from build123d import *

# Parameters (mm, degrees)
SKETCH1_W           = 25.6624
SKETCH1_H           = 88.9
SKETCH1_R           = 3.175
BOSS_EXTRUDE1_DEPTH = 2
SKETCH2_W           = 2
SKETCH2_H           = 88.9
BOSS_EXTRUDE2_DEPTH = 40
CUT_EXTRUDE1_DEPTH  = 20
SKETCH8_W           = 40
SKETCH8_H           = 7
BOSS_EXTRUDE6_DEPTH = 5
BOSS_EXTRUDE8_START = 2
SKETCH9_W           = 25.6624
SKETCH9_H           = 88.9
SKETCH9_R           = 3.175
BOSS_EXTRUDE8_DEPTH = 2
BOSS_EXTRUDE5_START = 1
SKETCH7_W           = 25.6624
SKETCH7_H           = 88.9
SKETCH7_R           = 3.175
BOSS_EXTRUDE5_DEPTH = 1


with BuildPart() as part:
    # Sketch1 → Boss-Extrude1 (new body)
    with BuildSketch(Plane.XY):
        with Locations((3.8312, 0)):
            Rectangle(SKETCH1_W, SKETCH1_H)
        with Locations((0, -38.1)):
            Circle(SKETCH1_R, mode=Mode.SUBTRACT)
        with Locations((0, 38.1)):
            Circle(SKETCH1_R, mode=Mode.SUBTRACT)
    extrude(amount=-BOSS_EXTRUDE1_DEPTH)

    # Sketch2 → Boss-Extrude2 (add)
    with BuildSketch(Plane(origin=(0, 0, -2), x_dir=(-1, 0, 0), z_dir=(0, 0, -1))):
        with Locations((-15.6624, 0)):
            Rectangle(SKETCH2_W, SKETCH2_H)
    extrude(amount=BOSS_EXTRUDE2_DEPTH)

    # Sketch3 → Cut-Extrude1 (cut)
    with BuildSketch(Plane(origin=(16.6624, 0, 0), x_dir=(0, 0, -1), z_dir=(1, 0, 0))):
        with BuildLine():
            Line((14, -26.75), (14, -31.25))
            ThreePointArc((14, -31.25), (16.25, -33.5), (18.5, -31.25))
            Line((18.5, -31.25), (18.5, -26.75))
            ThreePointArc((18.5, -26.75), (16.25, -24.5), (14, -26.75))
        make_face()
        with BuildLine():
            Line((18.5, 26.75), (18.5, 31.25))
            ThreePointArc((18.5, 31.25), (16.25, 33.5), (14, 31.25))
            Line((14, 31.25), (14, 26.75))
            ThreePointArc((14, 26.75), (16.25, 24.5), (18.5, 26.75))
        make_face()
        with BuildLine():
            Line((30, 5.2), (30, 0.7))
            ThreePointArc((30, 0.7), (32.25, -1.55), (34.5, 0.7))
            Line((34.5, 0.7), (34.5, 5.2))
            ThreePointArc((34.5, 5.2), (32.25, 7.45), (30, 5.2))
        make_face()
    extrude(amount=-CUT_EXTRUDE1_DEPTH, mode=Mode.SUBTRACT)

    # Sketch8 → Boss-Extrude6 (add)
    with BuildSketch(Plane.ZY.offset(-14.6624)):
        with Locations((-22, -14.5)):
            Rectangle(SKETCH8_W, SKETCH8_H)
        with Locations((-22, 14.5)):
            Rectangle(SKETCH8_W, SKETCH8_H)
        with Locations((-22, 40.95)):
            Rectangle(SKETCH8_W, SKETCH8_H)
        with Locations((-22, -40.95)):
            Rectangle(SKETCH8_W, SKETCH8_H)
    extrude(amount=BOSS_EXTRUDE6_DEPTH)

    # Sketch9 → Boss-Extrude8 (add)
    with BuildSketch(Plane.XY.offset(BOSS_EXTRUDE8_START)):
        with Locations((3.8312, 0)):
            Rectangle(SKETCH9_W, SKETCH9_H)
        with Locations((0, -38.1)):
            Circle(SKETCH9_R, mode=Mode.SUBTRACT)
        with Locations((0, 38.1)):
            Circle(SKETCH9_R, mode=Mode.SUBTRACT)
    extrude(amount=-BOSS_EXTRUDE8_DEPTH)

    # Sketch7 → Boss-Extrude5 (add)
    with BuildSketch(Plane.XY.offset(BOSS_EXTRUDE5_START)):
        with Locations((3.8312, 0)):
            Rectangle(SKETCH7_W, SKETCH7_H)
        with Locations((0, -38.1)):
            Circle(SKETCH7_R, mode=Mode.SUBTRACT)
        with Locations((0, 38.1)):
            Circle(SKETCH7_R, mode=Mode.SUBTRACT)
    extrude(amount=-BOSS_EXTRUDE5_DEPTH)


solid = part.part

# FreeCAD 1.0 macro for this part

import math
import FreeCAD as App
import Part
import Sketcher
Q = App.Units.Quantity


def add_polygon(sketch, points):
    """Adds a closed chain of lines whose ends are joined by coincident constraints."""
    first, n = sketch.GeometryCount, len(points)
    for a, b in zip(points, points[1:] + points[:1]):
        sketch.addGeometry(Part.LineSegment(App.Vector(*a, 0), App.Vector(*b, 0)), False)
    for i in range(n):
        sketch.addConstraint(Sketcher.Constraint("Coincident", first + i, 2, first + (i + 1) % n, 1))

doc = App.newDocument("Part")
body = doc.addObject("PartDesign::Body", "Body")

# Sketch on XY plane
sketch1 = body.newObject("Sketcher::SketchObject", "Sketch")
sketch1.AttachmentSupport = (doc.getObject("XY_Plane"), [""])
sketch1.MapMode = "FlatFace"
add_polygon(sketch1, [(-9, 44.5), (-9, -44.5), (16.7, -44.5), (16.7, 44.5)])  # lines 0-3
sketch1.addGeometry(Part.Circle(App.Vector(0, -38.1, 0), App.Vector(0, 0, 1), 3.2), False)  # 4
sketch1.addGeometry(Part.Circle(App.Vector(0, 38.1, 0), App.Vector(0, 0, 1), 3.2), False)  # 5
sketch1.addConstraint(Sketcher.Constraint("Vertical", 0))
sketch1.addConstraint(Sketcher.Constraint("Horizontal", 1))
sketch1.addConstraint(Sketcher.Constraint("Vertical", 2))
sketch1.addConstraint(Sketcher.Constraint("Horizontal", 3))
sketch1.addConstraint(Sketcher.Constraint("Equal", 4, 5))
sketch1.addConstraint(Sketcher.Constraint("Symmetric", 4, 3, 5, 3, -1, 1))
sketch1.addConstraint(Sketcher.Constraint("PointOnObject", 4, 3, -2))
sketch1.addConstraint(Sketcher.Constraint("Diameter", 4, Q("6.35 mm")))
sketch1.addConstraint(Sketcher.Constraint("DistanceY", 0, 2, 0, 1, Q("88.9 mm")))
sketch1.addConstraint(Sketcher.Constraint("DistanceX", 0, 2, -1, 1, Q("9 mm")))
sketch1.addConstraint(Sketcher.Constraint("DistanceY", 4, 3, -1, 1, Q("38.1 mm")))
sketch1.addConstraint(Sketcher.Constraint("DistanceY", 0, 2, -1, 1, Q("44.45 mm")))
sketch1.addConstraint(Sketcher.Constraint("DistanceX", 1, 1, 1, 2, Q("25.6624 mm")))
pad1 = body.newObject("PartDesign::Pad", "Pad")
pad1.Profile = sketch1
pad1.Length = 2
pad1.Reversed = True

# Sketch on XY plane
sketch2 = body.newObject("Sketcher::SketchObject", "Sketch001")
sketch2.AttachmentSupport = (doc.getObject("XY_Plane"), [""])
sketch2.MapMode = "FlatFace"
sketch2.AttachmentOffset = App.Placement(App.Vector(0, 0, -2), App.Rotation())
add_polygon(sketch2, [(16.7, 44.5), (16.7, -44.5), (14.7, -44.5), (14.7, 44.5)])  # lines 0-3
sketch2.addConstraint(Sketcher.Constraint("Vertical", 0))
sketch2.addConstraint(Sketcher.Constraint("Horizontal", 1))
sketch2.addConstraint(Sketcher.Constraint("Vertical", 2))
sketch2.addConstraint(Sketcher.Constraint("Horizontal", 3))
sketch2.addConstraint(Sketcher.Constraint("DistanceX", 1, 2, 1, 1, Q("2 mm")))
sketch2.addConstraint(Sketcher.Constraint("DistanceY", 0, 2, 0, 1, Q("88.9 mm")))
sketch2.addConstraint(Sketcher.Constraint("DistanceY", 0, 2, -1, 1, Q("44.45 mm")))
sketch2.addConstraint(Sketcher.Constraint("DistanceX", -1, 1, 0, 2, Q("16.6624 mm")))
pad2 = body.newObject("PartDesign::Pad", "Pad001")
pad2.Profile = sketch2
pad2.Length = 40
pad2.Reversed = True

# Sketch on YZ plane
sketch3 = body.newObject("Sketcher::SketchObject", "Sketch002")
sketch3.AttachmentSupport = (doc.getObject("YZ_Plane"), [""])
sketch3.MapMode = "FlatFace"
sketch3.AttachmentOffset = App.Placement(App.Vector(0, 0, 16.6624), App.Rotation())
sketch3.addGeometry(Part.LineSegment(App.Vector(-26.8, -14, 0), App.Vector(-31.2, -14, 0)), False)
sketch3.addGeometry(Part.ArcOfCircle(Part.Circle(App.Vector(-31.2, -16.2, 0), App.Vector(0, 0, 1), 2.2), math.radians(90), math.radians(270)), False)
sketch3.addGeometry(Part.LineSegment(App.Vector(-31.2, -18.5, 0), App.Vector(-26.8, -18.5, 0)), False)
sketch3.addGeometry(Part.ArcOfCircle(Part.Circle(App.Vector(-26.8, -16.2, 0), App.Vector(0, 0, 1), 2.2), math.radians(-90), math.radians(90)), False)
sketch3.addGeometry(Part.LineSegment(App.Vector(26.8, -18.5, 0), App.Vector(31.2, -18.5, 0)), False)
sketch3.addGeometry(Part.ArcOfCircle(Part.Circle(App.Vector(31.2, -16.2, 0), App.Vector(0, 0, 1), 2.2), math.radians(-90), math.radians(90)), False)
sketch3.addGeometry(Part.LineSegment(App.Vector(31.2, -14, 0), App.Vector(26.8, -14, 0)), False)
sketch3.addGeometry(Part.ArcOfCircle(Part.Circle(App.Vector(26.8, -16.2, 0), App.Vector(0, 0, 1), 2.2), math.radians(90), math.radians(270)), False)
sketch3.addGeometry(Part.LineSegment(App.Vector(5.2, -30, 0), App.Vector(0.7, -30, 0)), False)
sketch3.addGeometry(Part.ArcOfCircle(Part.Circle(App.Vector(0.7, -32.2, 0), App.Vector(0, 0, 1), 2.2), math.radians(90), math.radians(270)), False)
sketch3.addGeometry(Part.LineSegment(App.Vector(0.7, -34.5, 0), App.Vector(5.2, -34.5, 0)), False)
sketch3.addGeometry(Part.ArcOfCircle(Part.Circle(App.Vector(5.2, -32.2, 0), App.Vector(0, 0, 1), 2.2), math.radians(-90), math.radians(90)), False)
sketch3.addConstraint(Sketcher.Constraint("Tangent", 0, 2, 1, 1))
sketch3.addConstraint(Sketcher.Constraint("Tangent", 1, 2, 2, 1))
sketch3.addConstraint(Sketcher.Constraint("Tangent", 2, 2, 3, 1))
sketch3.addConstraint(Sketcher.Constraint("Tangent", 3, 2, 0, 1))
sketch3.addConstraint(Sketcher.Constraint("Tangent", 4, 2, 5, 1))
sketch3.addConstraint(Sketcher.Constraint("Tangent", 5, 2, 6, 1))
sketch3.addConstraint(Sketcher.Constraint("Tangent", 6, 2, 7, 1))
sketch3.addConstraint(Sketcher.Constraint("Tangent", 7, 2, 4, 1))
sketch3.addConstraint(Sketcher.Constraint("Tangent", 8, 2, 9, 1))
sketch3.addConstraint(Sketcher.Constraint("Tangent", 9, 2, 10, 1))
sketch3.addConstraint(Sketcher.Constraint("Tangent", 10, 2, 11, 1))
sketch3.addConstraint(Sketcher.Constraint("Tangent", 11, 2, 8, 1))
sketch3.addConstraint(Sketcher.Constraint("Horizontal", 0))
sketch3.addConstraint(Sketcher.Constraint("Horizontal", 2))
sketch3.addConstraint(Sketcher.Constraint("Horizontal", 4))
sketch3.addConstraint(Sketcher.Constraint("Horizontal", 6))
sketch3.addConstraint(Sketcher.Constraint("Horizontal", 8))
sketch3.addConstraint(Sketcher.Constraint("Horizontal", 10))
sketch3.addConstraint(Sketcher.Constraint("Equal", 3, 5))
sketch3.addConstraint(Sketcher.Constraint("Equal", 7, 9))
sketch3.addConstraint(Sketcher.Constraint("Symmetric", 1, 3, 5, 3, -2))
sketch3.addConstraint(Sketcher.Constraint("Equal", 2, 4))
sketch3.addConstraint(Sketcher.Constraint("Equal", 6, 8))
sketch3.addConstraint(Sketcher.Constraint("Radius", 1, Q("2.25 mm")))
sketch3.addConstraint(Sketcher.Constraint("DistanceX", 0, 2, 0, 1, Q("4.5 mm")))
sketch3.addConstraint(Sketcher.Constraint("DistanceY", 0, 2, -1, 1, Q("14 mm")))
sketch3.addConstraint(Sketcher.Constraint("DistanceY", 8, 2, -1, 1, Q("30 mm")))
sketch3.addConstraint(Sketcher.Constraint("DistanceX", 3, 3, 5, 3, Q("58 mm")))
sketch3.addConstraint(Sketcher.Constraint("DistanceX", -1, 1, 9, 3, Q("0.7 mm")))
pocket1 = body.newObject("PartDesign::Pocket", "Pocket")
pocket1.Profile = sketch3
pocket1.Length = 20

# Sketch on YZ plane
sketch4 = body.newObject("Sketcher::SketchObject", "Sketch003")
sketch4.AttachmentSupport = (doc.getObject("YZ_Plane"), [""])
sketch4.MapMode = "FlatFace"
sketch4.AttachmentOffset = App.Placement(App.Vector(0, 0, 14.6624), App.Rotation())
add_polygon(sketch4, [(-11, -42), (-18, -42), (-18, -2), (-11, -2)])  # lines 0-3
add_polygon(sketch4, [(18, -42), (11, -42), (11, -2), (18, -2)])  # lines 4-7
add_polygon(sketch4, [(44, -42), (37, -42), (37, -2), (44, -2)])  # lines 8-11
add_polygon(sketch4, [(-37, -42), (-44, -42), (-44, -2), (-37, -2)])  # lines 12-15
sketch4.addConstraint(Sketcher.Constraint("Horizontal", 0))
sketch4.addConstraint(Sketcher.Constraint("Vertical", 1))
sketch4.addConstraint(Sketcher.Constraint("Horizontal", 2))
sketch4.addConstraint(Sketcher.Constraint("Vertical", 3))
sketch4.addConstraint(Sketcher.Constraint("Horizontal", 4))
sketch4.addConstraint(Sketcher.Constraint("Vertical", 5))
sketch4.addConstraint(Sketcher.Constraint("Horizontal", 6))
sketch4.addConstraint(Sketcher.Constraint("Vertical", 7))
sketch4.addConstraint(Sketcher.Constraint("Horizontal", 8))
sketch4.addConstraint(Sketcher.Constraint("Vertical", 9))
sketch4.addConstraint(Sketcher.Constraint("Horizontal", 10))
sketch4.addConstraint(Sketcher.Constraint("Vertical", 11))
sketch4.addConstraint(Sketcher.Constraint("Horizontal", 12))
sketch4.addConstraint(Sketcher.Constraint("Vertical", 13))
sketch4.addConstraint(Sketcher.Constraint("Horizontal", 14))
sketch4.addConstraint(Sketcher.Constraint("Vertical", 15))
sketch4.addConstraint(Sketcher.Constraint("Symmetric", 3, 2, 4, 2, -2))
sketch4.addConstraint(Sketcher.Constraint("Symmetric", 1, 2, 6, 2, -2))
sketch4.addConstraint(Sketcher.Constraint("Symmetric", 11, 2, 12, 2, -2))
sketch4.addConstraint(Sketcher.Constraint("Symmetric", 9, 2, 14, 2, -2))
sketch4.addConstraint(Sketcher.Constraint("Horizontal", 7, 2, 8, 2))
sketch4.addConstraint(Sketcher.Constraint("Horizontal", 6, 2, 9, 2))
sketch4.addConstraint(Sketcher.Constraint("Equal", 6, 8))
sketch4.addConstraint(Sketcher.Constraint("DistanceX", 0, 2, 0, 1, Q("7 mm")))
sketch4.addConstraint(Sketcher.Constraint("DistanceY", 1, 1, 1, 2, Q("40 mm")))
sketch4.addConstraint(Sketcher.Constraint("DistanceX", 0, 2, -1, 1, Q("18 mm")))
sketch4.addConstraint(Sketcher.Constraint("DistanceY", 0, 2, -1, 1, Q("42 mm")))
sketch4.addConstraint(Sketcher.Constraint("DistanceX", -1, 1, 8, 2, Q("37.45 mm")))
pad3 = body.newObject("PartDesign::Pad", "Pad002")
pad3.Profile = sketch4
pad3.Length = 5
pad3.Reversed = True

# Sketch on XY plane
sketch5 = body.newObject("Sketcher::SketchObject", "Sketch004")
sketch5.AttachmentSupport = (doc.getObject("XY_Plane"), [""])
sketch5.MapMode = "FlatFace"
sketch5.AttachmentOffset = App.Placement(App.Vector(0, 0, 2), App.Rotation())
add_polygon(sketch5, [(-9, 44.5), (-9, -44.5), (16.7, -44.5), (16.7, 44.5)])  # lines 0-3
sketch5.addGeometry(Part.Circle(App.Vector(0, -38.1, 0), App.Vector(0, 0, 1), 3.2), False)  # 4
sketch5.addGeometry(Part.Circle(App.Vector(0, 38.1, 0), App.Vector(0, 0, 1), 3.2), False)  # 5
sketch5.addConstraint(Sketcher.Constraint("Vertical", 0))
sketch5.addConstraint(Sketcher.Constraint("Horizontal", 1))
sketch5.addConstraint(Sketcher.Constraint("Vertical", 2))
sketch5.addConstraint(Sketcher.Constraint("Horizontal", 3))
sketch5.addConstraint(Sketcher.Constraint("Equal", 4, 5))
sketch5.addConstraint(Sketcher.Constraint("Symmetric", 4, 3, 5, 3, -1, 1))
sketch5.addConstraint(Sketcher.Constraint("PointOnObject", 4, 3, -2))
sketch5.addConstraint(Sketcher.Constraint("Diameter", 4, Q("6.35 mm")))
sketch5.addConstraint(Sketcher.Constraint("DistanceY", 0, 2, 0, 1, Q("88.9 mm")))
sketch5.addConstraint(Sketcher.Constraint("DistanceX", 0, 2, -1, 1, Q("9 mm")))
sketch5.addConstraint(Sketcher.Constraint("DistanceY", 4, 3, -1, 1, Q("38.1 mm")))
sketch5.addConstraint(Sketcher.Constraint("DistanceY", 0, 2, -1, 1, Q("44.45 mm")))
sketch5.addConstraint(Sketcher.Constraint("DistanceX", 1, 1, 1, 2, Q("25.6624 mm")))
pad4 = body.newObject("PartDesign::Pad", "Pad003")
pad4.Profile = sketch5
pad4.Length = 2
pad4.Reversed = True

# Sketch on XY plane
sketch6 = body.newObject("Sketcher::SketchObject", "Sketch005")
sketch6.AttachmentSupport = (doc.getObject("XY_Plane"), [""])
sketch6.MapMode = "FlatFace"
sketch6.AttachmentOffset = App.Placement(App.Vector(0, 0, 1), App.Rotation())
add_polygon(sketch6, [(-9, 44.5), (-9, -44.5), (16.7, -44.5), (16.7, 44.5)])  # lines 0-3
sketch6.addGeometry(Part.Circle(App.Vector(0, -38.1, 0), App.Vector(0, 0, 1), 3.2), False)  # 4
sketch6.addGeometry(Part.Circle(App.Vector(0, 38.1, 0), App.Vector(0, 0, 1), 3.2), False)  # 5
sketch6.addConstraint(Sketcher.Constraint("Vertical", 0))
sketch6.addConstraint(Sketcher.Constraint("Horizontal", 1))
sketch6.addConstraint(Sketcher.Constraint("Vertical", 2))
sketch6.addConstraint(Sketcher.Constraint("Horizontal", 3))
sketch6.addConstraint(Sketcher.Constraint("Equal", 4, 5))
sketch6.addConstraint(Sketcher.Constraint("Symmetric", 4, 3, 5, 3, -1, 1))
sketch6.addConstraint(Sketcher.Constraint("PointOnObject", 4, 3, -2))
sketch6.addConstraint(Sketcher.Constraint("Diameter", 4, Q("6.35 mm")))
sketch6.addConstraint(Sketcher.Constraint("DistanceY", 0, 2, 0, 1, Q("88.9 mm")))
sketch6.addConstraint(Sketcher.Constraint("DistanceX", 0, 2, -1, 1, Q("9 mm")))
sketch6.addConstraint(Sketcher.Constraint("DistanceY", 4, 3, -1, 1, Q("38.1 mm")))
sketch6.addConstraint(Sketcher.Constraint("DistanceY", 0, 2, -1, 1, Q("44.45 mm")))
sketch6.addConstraint(Sketcher.Constraint("DistanceX", 1, 1, 1, 2, Q("25.6624 mm")))
pad5 = body.newObject("PartDesign::Pad", "Pad004")
pad5.Profile = sketch6
pad5.Length = 1
pad5.Reversed = True

doc.recompute()
